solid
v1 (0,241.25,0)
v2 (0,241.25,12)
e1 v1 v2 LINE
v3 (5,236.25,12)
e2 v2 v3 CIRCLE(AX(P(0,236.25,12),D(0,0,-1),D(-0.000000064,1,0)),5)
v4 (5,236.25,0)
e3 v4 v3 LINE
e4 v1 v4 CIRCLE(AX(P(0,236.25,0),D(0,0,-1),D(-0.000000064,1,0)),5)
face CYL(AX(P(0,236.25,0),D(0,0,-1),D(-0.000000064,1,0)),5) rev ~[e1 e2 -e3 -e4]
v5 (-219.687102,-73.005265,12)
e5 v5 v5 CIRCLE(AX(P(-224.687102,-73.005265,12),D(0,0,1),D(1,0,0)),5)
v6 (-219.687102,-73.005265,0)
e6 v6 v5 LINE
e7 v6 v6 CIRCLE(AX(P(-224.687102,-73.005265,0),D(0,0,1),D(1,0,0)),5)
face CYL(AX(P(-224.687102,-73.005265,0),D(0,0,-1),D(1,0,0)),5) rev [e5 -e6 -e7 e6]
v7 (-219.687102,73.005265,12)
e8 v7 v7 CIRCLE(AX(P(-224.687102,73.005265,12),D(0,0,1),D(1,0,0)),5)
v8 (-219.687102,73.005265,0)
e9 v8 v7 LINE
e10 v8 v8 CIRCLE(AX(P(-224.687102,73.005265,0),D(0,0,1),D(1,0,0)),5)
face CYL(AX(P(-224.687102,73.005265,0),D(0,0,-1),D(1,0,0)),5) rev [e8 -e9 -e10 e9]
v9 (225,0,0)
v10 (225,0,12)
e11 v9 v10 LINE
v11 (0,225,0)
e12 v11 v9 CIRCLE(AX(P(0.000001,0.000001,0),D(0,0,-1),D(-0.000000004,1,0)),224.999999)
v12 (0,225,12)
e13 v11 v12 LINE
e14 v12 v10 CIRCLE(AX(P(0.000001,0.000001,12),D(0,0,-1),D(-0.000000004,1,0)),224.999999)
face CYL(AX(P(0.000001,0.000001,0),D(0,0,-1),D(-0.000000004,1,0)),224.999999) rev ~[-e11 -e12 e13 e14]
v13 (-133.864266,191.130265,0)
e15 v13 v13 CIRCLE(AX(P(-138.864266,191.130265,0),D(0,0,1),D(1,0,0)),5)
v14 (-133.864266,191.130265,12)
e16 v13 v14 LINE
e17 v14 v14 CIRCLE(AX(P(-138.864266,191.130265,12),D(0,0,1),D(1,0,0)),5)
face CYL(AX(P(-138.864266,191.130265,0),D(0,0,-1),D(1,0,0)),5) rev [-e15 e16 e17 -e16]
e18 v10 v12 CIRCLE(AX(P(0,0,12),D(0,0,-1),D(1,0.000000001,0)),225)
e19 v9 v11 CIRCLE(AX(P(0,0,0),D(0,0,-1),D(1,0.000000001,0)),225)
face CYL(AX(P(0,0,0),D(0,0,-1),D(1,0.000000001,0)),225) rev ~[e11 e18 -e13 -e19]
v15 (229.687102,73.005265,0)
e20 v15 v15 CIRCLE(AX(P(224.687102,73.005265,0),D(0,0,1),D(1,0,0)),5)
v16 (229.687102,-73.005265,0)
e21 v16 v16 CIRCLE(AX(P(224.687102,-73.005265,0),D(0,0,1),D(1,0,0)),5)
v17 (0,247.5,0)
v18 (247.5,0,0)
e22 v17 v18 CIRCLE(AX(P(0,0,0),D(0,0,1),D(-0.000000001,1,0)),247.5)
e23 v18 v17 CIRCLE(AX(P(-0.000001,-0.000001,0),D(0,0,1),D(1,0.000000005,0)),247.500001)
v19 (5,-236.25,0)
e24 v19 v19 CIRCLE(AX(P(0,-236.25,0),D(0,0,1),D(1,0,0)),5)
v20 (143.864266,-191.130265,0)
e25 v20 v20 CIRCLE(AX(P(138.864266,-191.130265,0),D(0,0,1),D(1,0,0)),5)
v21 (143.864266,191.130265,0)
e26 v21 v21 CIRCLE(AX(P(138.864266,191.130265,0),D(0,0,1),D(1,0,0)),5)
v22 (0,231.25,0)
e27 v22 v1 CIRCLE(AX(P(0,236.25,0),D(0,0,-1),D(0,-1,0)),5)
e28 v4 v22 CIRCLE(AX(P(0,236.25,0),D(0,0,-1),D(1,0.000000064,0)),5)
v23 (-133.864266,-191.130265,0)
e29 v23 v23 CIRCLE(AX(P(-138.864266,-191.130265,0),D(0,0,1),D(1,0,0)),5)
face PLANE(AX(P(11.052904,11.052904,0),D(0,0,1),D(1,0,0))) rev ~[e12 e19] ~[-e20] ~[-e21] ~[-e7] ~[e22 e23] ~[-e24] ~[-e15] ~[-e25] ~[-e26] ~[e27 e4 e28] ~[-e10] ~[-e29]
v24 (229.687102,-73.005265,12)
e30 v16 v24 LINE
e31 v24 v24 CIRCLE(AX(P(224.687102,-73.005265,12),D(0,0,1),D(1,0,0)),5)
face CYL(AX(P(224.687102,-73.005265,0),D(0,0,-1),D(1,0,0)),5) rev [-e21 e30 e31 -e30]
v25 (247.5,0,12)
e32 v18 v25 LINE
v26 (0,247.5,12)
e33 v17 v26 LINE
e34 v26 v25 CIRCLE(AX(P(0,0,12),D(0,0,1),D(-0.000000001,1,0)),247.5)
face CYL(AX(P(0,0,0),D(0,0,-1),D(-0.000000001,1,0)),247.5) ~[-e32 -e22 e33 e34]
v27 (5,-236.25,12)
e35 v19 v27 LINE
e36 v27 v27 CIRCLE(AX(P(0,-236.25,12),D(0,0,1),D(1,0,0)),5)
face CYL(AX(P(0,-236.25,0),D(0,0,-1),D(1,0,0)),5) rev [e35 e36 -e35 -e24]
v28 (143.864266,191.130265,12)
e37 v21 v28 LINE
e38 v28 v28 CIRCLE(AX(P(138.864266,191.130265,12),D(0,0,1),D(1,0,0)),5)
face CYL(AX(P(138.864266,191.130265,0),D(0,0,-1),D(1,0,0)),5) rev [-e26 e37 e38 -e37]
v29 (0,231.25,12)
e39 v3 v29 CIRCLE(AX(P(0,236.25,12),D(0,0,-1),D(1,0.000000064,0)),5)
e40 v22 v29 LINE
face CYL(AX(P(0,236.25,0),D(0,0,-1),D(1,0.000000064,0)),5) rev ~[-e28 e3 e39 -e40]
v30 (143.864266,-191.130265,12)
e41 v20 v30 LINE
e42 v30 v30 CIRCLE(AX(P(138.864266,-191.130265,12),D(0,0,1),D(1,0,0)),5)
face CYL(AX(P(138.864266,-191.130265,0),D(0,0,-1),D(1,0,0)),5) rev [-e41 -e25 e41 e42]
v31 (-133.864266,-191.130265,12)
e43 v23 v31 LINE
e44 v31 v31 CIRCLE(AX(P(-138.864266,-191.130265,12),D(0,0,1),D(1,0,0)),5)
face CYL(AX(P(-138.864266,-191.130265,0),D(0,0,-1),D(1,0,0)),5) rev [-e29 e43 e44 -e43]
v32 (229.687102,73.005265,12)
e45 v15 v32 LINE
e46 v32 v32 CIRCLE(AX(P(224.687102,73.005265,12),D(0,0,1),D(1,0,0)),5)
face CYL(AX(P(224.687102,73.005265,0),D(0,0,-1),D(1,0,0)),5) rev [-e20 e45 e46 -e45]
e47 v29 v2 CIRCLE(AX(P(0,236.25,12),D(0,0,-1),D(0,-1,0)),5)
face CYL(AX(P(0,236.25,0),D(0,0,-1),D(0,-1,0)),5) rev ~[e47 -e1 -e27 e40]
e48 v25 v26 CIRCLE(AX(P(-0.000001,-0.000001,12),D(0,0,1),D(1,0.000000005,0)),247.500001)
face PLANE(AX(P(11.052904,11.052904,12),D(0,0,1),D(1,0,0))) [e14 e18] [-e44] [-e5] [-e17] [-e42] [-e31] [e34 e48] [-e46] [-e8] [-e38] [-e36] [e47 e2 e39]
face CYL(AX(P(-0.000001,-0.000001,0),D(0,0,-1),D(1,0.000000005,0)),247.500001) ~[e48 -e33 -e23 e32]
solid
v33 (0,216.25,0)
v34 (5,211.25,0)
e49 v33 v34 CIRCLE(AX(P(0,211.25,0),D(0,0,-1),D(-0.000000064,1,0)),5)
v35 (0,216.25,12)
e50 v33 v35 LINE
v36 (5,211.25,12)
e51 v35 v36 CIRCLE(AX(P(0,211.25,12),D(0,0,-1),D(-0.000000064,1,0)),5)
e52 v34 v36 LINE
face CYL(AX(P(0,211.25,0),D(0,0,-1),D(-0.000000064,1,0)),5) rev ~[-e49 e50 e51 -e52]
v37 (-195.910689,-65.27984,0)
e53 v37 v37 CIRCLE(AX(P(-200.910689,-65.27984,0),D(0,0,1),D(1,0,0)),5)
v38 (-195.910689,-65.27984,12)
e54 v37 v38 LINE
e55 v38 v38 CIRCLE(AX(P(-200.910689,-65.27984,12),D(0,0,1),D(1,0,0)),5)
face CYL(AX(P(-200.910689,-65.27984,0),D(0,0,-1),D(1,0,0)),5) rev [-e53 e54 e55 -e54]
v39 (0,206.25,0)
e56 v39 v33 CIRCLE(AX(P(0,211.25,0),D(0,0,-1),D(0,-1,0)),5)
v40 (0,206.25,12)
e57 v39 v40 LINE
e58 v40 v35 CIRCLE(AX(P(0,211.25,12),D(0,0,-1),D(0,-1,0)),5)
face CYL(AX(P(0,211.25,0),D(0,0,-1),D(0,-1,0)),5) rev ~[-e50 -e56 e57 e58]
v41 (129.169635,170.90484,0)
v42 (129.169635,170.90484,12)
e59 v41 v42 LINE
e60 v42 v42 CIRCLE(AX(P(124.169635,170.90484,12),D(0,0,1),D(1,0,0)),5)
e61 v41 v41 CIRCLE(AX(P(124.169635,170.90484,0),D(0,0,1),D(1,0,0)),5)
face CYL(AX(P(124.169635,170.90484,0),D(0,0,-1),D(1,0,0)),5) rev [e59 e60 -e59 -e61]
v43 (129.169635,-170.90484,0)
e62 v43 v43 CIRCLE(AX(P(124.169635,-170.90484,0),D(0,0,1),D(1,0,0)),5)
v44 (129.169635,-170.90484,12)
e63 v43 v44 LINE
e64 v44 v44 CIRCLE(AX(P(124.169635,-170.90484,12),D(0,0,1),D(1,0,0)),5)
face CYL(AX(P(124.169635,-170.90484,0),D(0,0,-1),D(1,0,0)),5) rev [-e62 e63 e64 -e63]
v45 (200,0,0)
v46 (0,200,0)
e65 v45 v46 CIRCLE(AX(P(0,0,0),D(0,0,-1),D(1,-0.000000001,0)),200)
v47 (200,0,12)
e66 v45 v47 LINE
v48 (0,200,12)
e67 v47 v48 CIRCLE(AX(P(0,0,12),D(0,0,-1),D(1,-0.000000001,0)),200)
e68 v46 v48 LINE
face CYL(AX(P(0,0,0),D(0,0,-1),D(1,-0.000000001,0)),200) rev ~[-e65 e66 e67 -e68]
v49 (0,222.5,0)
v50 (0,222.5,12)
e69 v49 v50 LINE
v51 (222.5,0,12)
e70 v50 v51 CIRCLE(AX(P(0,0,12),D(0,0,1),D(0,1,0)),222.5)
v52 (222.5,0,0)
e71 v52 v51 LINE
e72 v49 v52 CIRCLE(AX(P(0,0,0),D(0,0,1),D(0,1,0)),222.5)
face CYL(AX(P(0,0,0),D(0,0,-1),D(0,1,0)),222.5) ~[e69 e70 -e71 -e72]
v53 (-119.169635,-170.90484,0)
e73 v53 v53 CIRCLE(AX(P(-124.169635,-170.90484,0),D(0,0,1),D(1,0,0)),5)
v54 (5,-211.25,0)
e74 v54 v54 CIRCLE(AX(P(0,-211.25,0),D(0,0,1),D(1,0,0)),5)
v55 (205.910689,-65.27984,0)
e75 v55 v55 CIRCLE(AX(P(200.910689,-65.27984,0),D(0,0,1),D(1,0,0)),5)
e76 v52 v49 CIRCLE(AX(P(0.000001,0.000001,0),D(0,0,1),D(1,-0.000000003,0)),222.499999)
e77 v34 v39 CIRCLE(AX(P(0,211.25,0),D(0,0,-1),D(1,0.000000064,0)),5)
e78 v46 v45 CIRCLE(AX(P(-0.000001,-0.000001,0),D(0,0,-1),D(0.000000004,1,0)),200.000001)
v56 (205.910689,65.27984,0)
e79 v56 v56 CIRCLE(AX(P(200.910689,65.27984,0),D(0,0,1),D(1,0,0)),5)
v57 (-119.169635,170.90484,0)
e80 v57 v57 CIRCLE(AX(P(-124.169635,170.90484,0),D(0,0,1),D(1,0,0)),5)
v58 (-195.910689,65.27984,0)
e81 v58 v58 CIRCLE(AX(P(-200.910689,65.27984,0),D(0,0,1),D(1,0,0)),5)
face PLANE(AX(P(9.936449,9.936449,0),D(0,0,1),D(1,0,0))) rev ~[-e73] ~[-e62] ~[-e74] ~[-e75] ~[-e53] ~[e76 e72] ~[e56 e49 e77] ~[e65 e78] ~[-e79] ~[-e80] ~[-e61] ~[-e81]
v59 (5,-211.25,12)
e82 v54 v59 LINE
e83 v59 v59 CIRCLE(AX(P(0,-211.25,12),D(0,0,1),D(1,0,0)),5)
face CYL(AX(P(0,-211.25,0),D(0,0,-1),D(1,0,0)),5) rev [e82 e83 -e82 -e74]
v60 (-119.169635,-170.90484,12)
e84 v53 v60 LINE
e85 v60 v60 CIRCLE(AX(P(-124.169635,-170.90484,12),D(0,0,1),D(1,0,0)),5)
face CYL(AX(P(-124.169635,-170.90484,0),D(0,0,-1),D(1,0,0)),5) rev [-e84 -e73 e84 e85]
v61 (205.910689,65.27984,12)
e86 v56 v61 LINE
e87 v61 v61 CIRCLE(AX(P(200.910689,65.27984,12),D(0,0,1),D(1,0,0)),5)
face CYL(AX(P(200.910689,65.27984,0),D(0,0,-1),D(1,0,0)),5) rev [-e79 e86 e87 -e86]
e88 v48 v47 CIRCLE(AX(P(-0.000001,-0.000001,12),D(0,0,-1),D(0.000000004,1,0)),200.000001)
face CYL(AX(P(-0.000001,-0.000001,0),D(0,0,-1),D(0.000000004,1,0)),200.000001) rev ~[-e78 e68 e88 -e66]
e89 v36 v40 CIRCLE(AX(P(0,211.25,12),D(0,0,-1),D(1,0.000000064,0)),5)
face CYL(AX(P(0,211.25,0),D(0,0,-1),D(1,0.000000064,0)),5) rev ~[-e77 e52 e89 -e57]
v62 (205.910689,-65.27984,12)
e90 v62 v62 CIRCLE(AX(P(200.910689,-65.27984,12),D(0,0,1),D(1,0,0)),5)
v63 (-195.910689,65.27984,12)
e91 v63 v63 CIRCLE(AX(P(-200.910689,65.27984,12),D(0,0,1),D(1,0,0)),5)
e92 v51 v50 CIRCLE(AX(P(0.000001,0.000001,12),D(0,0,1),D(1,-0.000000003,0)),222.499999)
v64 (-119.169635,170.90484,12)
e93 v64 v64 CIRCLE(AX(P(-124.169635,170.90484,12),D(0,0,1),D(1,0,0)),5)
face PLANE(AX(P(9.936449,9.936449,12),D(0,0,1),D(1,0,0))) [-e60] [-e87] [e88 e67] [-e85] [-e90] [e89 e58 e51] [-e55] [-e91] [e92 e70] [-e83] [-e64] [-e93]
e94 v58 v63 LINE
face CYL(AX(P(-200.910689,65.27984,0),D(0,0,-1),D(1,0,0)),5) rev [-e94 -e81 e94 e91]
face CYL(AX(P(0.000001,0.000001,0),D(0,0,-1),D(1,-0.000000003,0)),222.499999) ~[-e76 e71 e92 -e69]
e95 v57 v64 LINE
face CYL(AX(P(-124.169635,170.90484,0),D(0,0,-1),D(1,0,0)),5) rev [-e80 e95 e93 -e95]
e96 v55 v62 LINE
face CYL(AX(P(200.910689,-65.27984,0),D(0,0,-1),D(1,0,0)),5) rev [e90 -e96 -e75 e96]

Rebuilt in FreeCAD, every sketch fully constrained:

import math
import FreeCAD as App
import Part
import Sketcher
from FreeCAD import Vector

doc = App.newDocument("Part")
body = doc.addObject("PartDesign::Body", "Body")
body.AllowCompound = True

# Sketch on XY plane
sketch1 = body.newObject("Sketcher::SketchObject", "Sketch")
sketch1.AttachmentSupport = (doc.getObject("XY_Plane"), [""])
sketch1.MapMode = "FlatFace"
sketch1.addGeometry(Part.ArcOfCircle(Part.Circle(Vector(0, 0, 0), Vector(0, 0, 1), 247.5), math.radians(0), math.radians(90)), False)
sketch1.addGeometry(Part.ArcOfCircle(Part.Circle(Vector(0, 0, 0), Vector(0, 0, 1), 247.5), math.radians(90), math.radians(360)), False)
sketch1.addGeometry(Part.Circle(Vector(-138.9, -191.1, 0), Vector(0, 0, 1), 5), False)
sketch1.addGeometry(Part.Circle(Vector(-224.7, -73, 0), Vector(0, 0, 1), 5), False)
sketch1.addGeometry(Part.ArcOfCircle(Part.Circle(Vector(0, 0, 0), Vector(0, 0, 1), 225), math.radians(0), math.radians(90)), False)
sketch1.addGeometry(Part.ArcOfCircle(Part.Circle(Vector(0, 0, 0), Vector(0, 0, 1), 225), math.radians(90), math.radians(360)), False)
sketch1.addGeometry(Part.Circle(Vector(0, -236.2, 0), Vector(0, 0, 1), 5), False)
sketch1.addGeometry(Part.Circle(Vector(138.9, -191.1, 0), Vector(0, 0, 1), 5), False)
sketch1.addGeometry(Part.Circle(Vector(224.7, -73, 0), Vector(0, 0, 1), 5), False)
sketch1.addGeometry(Part.Circle(Vector(-224.7, 73, 0), Vector(0, 0, 1), 5), False)
sketch1.addGeometry(Part.Circle(Vector(-138.9, 191.1, 0), Vector(0, 0, 1), 5), False)
sketch1.addGeometry(Part.Circle(Vector(224.7, 73, 0), Vector(0, 0, 1), 5), False)
sketch1.addGeometry(Part.ArcOfCircle(Part.Circle(Vector(0, 236.3, 0), Vector(0, 0, 1), 5), math.radians(0), math.radians(90)), False)
sketch1.addGeometry(Part.ArcOfCircle(Part.Circle(Vector(0, 236.2, 0), Vector(0, 0, 1), 5), math.radians(-90), math.radians(0)), False)
sketch1.addGeometry(Part.ArcOfCircle(Part.Circle(Vector(0, 236.2, 0), Vector(0, 0, 1), 5), math.radians(90), math.radians(270)), False)
sketch1.addGeometry(Part.Circle(Vector(138.9, 191.1, 0), Vector(0, 0, 1), 5), False)
sketch1.addGeometry(Part.ArcOfCircle(Part.Circle(Vector(0, 0, 0), Vector(0, 0, 1), 222.5), math.radians(0), math.radians(90)), False)
sketch1.addGeometry(Part.ArcOfCircle(Part.Circle(Vector(0, 0, 0), Vector(0, 0, 1), 222.5), math.radians(90), math.radians(360)), False)
sketch1.addGeometry(Part.Circle(Vector(-124.2, -170.9, 0), Vector(0, 0, 1), 5), False)
sketch1.addGeometry(Part.Circle(Vector(-200.9, -65.3, 0), Vector(0, 0, 1), 5), False)
sketch1.addGeometry(Part.Circle(Vector(0, -211.2, 0), Vector(0, 0, 1), 5), False)
sketch1.addGeometry(Part.Circle(Vector(124.2, -170.9, 0), Vector(0, 0, 1), 5), False)
sketch1.addGeometry(Part.Circle(Vector(200.9, -65.3, 0), Vector(0, 0, 1), 5), False)
sketch1.addGeometry(Part.Circle(Vector(-200.9, 65.3, 0), Vector(0, 0, 1), 5), False)
sketch1.addGeometry(Part.Circle(Vector(-124.2, 170.9, 0), Vector(0, 0, 1), 5), False)
sketch1.addGeometry(Part.ArcOfCircle(Part.Circle(Vector(0, 0, 0), Vector(0, 0, 1), 200), math.radians(90), math.radians(360)), False)
sketch1.addGeometry(Part.ArcOfCircle(Part.Circle(Vector(0, 0, 0), Vector(0, 0, 1), 200), math.radians(0), math.radians(90)), False)
sketch1.addGeometry(Part.Circle(Vector(200.9, 65.3, 0), Vector(0, 0, 1), 5), False)
sketch1.addGeometry(Part.ArcOfCircle(Part.Circle(Vector(0, 211.3, 0), Vector(0, 0, 1), 5), math.radians(0), math.radians(90)), False)
sketch1.addGeometry(Part.ArcOfCircle(Part.Circle(Vector(0, 211.2, 0), Vector(0, 0, 1), 5), math.radians(-90), math.radians(0)), False)
sketch1.addGeometry(Part.ArcOfCircle(Part.Circle(Vector(0, 211.2, 0), Vector(0, 0, 1), 5), math.radians(90), math.radians(270)), False)
sketch1.addGeometry(Part.Circle(Vector(124.2, 170.9, 0), Vector(0, 0, 1), 5), False)
sketch1.addConstraint(Sketcher.Constraint("Tangent", 0, 1, 1, 2))
sketch1.addConstraint(Sketcher.Constraint("Coincident", 1, 1, 0, 2))
sketch1.addConstraint(Sketcher.Constraint("Tangent", 4, 1, 5, 2))
sketch1.addConstraint(Sketcher.Constraint("Coincident", 5, 1, 4, 2))
sketch1.addConstraint(Sketcher.Constraint("Tangent", 12, 1, 13, 2))
sketch1.addConstraint(Sketcher.Constraint("Tangent", 13, 1, 14, 2))
sketch1.addConstraint(Sketcher.Constraint("Tangent", 14, 1, 12, 2))
sketch1.addConstraint(Sketcher.Constraint("Tangent", 16, 1, 17, 2))
sketch1.addConstraint(Sketcher.Constraint("Coincident", 17, 1, 16, 2))
sketch1.addConstraint(Sketcher.Constraint("Tangent", 25, 1, 26, 2))
sketch1.addConstraint(Sketcher.Constraint("Coincident", 26, 1, 25, 2))
sketch1.addConstraint(Sketcher.Constraint("Tangent", 28, 1, 29, 2))
sketch1.addConstraint(Sketcher.Constraint("Tangent", 29, 1, 30, 2))
sketch1.addConstraint(Sketcher.Constraint("Tangent", 30, 1, 28, 2))
sketch1.addConstraint(Sketcher.Constraint("Coincident", 0, 3, -1, 1))
sketch1.addConstraint(Sketcher.Constraint("Coincident", 4, 3, -1, 1))
sketch1.addConstraint(Sketcher.Constraint("Coincident", 16, 3, -1, 1))
sketch1.addConstraint(Sketcher.Constraint("Coincident", 25, 3, -1, 1))
sketch1.addConstraint(Sketcher.Constraint("Equal", 2, 3))
sketch1.addConstraint(Sketcher.Constraint("Equal", 3, 6))
sketch1.addConstraint(Sketcher.Constraint("Equal", 6, 7))
sketch1.addConstraint(Sketcher.Constraint("Equal", 7, 8))
sketch1.addConstraint(Sketcher.Constraint("Equal", 8, 9))
sketch1.addConstraint(Sketcher.Constraint("Equal", 9, 10))
sketch1.addConstraint(Sketcher.Constraint("Equal", 10, 11))
sketch1.addConstraint(Sketcher.Constraint("Equal", 11, 12))
sketch1.addConstraint(Sketcher.Constraint("Equal", 14, 15))
sketch1.addConstraint(Sketcher.Constraint("Equal", 15, 18))
sketch1.addConstraint(Sketcher.Constraint("Equal", 18, 19))
sketch1.addConstraint(Sketcher.Constraint("Equal", 19, 20))
sketch1.addConstraint(Sketcher.Constraint("Equal", 20, 21))
sketch1.addConstraint(Sketcher.Constraint("Equal", 21, 22))
sketch1.addConstraint(Sketcher.Constraint("Equal", 22, 23))
sketch1.addConstraint(Sketcher.Constraint("Equal", 23, 24))
sketch1.addConstraint(Sketcher.Constraint("Equal", 24, 27))
sketch1.addConstraint(Sketcher.Constraint("Equal", 27, 28))
sketch1.addConstraint(Sketcher.Constraint("Equal", 30, 31))
sketch1.addConstraint(Sketcher.Constraint("Symmetric", 8, 3, 9, 3, -1, 1))
sketch1.addConstraint(Sketcher.Constraint("Symmetric", 7, 3, 10, 3, -1, 1))
sketch1.addConstraint(Sketcher.Constraint("Symmetric", 3, 3, 11, 3, -1, 1))
sketch1.addConstraint(Sketcher.Constraint("Symmetric", 6, 3, 12, 3, -1, 1))
sketch1.addConstraint(Sketcher.Constraint("Symmetric", 2, 3, 15, 3, -1, 1))
sketch1.addConstraint(Sketcher.Constraint("Symmetric", 22, 3, 23, 3, -1, 1))
sketch1.addConstraint(Sketcher.Constraint("Symmetric", 21, 3, 24, 3, -1, 1))
sketch1.addConstraint(Sketcher.Constraint("Symmetric", 19, 3, 27, 3, -1, 1))
sketch1.addConstraint(Sketcher.Constraint("Symmetric", 20, 3, 28, 3, -1, 1))
sketch1.addConstraint(Sketcher.Constraint("Symmetric", 18, 3, 31, 3, -1, 1))
sketch1.addConstraint(Sketcher.Constraint("Symmetric", 2, 3, 7, 3, -2))
sketch1.addConstraint(Sketcher.Constraint("Symmetric", 3, 3, 8, 3, -2))
sketch1.addConstraint(Sketcher.Constraint("Symmetric", 18, 3, 21, 3, -2))
sketch1.addConstraint(Sketcher.Constraint("Symmetric", 19, 3, 22, 3, -2))
sketch1.addConstraint(Sketcher.Constraint("PointOnObject", 6, 3, -2))
sketch1.addConstraint(Sketcher.Constraint("PointOnObject", 20, 3, -2))
sketch1.addConstraint(Sketcher.Constraint("PointOnObject", 0, 1, -1))
sketch1.addConstraint(Sketcher.Constraint("PointOnObject", 1, 1, -2))
sketch1.addConstraint(Sketcher.Constraint("PointOnObject", 4, 1, -1))
sketch1.addConstraint(Sketcher.Constraint("PointOnObject", 5, 1, -2))
sketch1.addConstraint(Sketcher.Constraint("PointOnObject", 13, 1, -2))
sketch1.addConstraint(Sketcher.Constraint("PointOnObject", 14, 1, -2))
sketch1.addConstraint(Sketcher.Constraint("PointOnObject", 16, 1, -1))
sketch1.addConstraint(Sketcher.Constraint("PointOnObject", 17, 1, -2))
sketch1.addConstraint(Sketcher.Constraint("PointOnObject", 25, 1, -2))
sketch1.addConstraint(Sketcher.Constraint("PointOnObject", 26, 1, -1))
sketch1.addConstraint(Sketcher.Constraint("PointOnObject", 29, 1, -2))
sketch1.addConstraint(Sketcher.Constraint("PointOnObject", 30, 1, -2))
sketch1.addConstraint(Sketcher.Constraint("Horizontal", 14, 3, 12, 1))
sketch1.addConstraint(Sketcher.Constraint("Horizontal", 30, 3, 28, 1))
sketch1.addConstraint(Sketcher.Constraint("Diameter", 2, 10.0))
sketch1.addConstraint(Sketcher.Constraint("Radius", 4, 224.999999))
sketch1.addConstraint(Sketcher.Constraint("Radius", 25, 200.0))
sketch1.addConstraint(Sketcher.Constraint("Radius", 0, 247.500001))
sketch1.addConstraint(Sketcher.Constraint("Radius", 16, 222.499999))
sketch1.addConstraint(Sketcher.Constraint("DistanceY", 6, 3, 20, 3, 25.0))
sketch1.addConstraint(Sketcher.Constraint("DistanceY", 6, 3, -1, 1, 236.25))
sketch1.addConstraint(Sketcher.Constraint("DistanceY", 2, 3, 3, 3, 118.125))
sketch1.addConstraint(Sketcher.Constraint("DistanceY", 18, 3, 19, 3, 105.625))
sketch1.addConstraint(Sketcher.Constraint("DistanceX", 3, 3, 0, 3, 224.687101))
sketch1.addConstraint(Sketcher.Constraint("DistanceY", 18, 3, -1, 1, 170.90484))
sketch1.addConstraint(Sketcher.Constraint("DistanceX", 19, 3, -1, 1, 200.910689))
sketch1.addConstraint(Sketcher.Constraint("DistanceY", 3, 3, 9, 3, 146.01053))
sketch1.addConstraint(Sketcher.Constraint("DistanceX", 2, 3, 18, 3, 14.694631))
sketch1.addConstraint(Sketcher.Constraint("DistanceX", 2, 3, -1, 1, 138.864266))
pad1 = body.newObject("PartDesign::Pad", "Pad")
pad1.Profile = sketch1
pad1.Length = 12

doc.recompute()
